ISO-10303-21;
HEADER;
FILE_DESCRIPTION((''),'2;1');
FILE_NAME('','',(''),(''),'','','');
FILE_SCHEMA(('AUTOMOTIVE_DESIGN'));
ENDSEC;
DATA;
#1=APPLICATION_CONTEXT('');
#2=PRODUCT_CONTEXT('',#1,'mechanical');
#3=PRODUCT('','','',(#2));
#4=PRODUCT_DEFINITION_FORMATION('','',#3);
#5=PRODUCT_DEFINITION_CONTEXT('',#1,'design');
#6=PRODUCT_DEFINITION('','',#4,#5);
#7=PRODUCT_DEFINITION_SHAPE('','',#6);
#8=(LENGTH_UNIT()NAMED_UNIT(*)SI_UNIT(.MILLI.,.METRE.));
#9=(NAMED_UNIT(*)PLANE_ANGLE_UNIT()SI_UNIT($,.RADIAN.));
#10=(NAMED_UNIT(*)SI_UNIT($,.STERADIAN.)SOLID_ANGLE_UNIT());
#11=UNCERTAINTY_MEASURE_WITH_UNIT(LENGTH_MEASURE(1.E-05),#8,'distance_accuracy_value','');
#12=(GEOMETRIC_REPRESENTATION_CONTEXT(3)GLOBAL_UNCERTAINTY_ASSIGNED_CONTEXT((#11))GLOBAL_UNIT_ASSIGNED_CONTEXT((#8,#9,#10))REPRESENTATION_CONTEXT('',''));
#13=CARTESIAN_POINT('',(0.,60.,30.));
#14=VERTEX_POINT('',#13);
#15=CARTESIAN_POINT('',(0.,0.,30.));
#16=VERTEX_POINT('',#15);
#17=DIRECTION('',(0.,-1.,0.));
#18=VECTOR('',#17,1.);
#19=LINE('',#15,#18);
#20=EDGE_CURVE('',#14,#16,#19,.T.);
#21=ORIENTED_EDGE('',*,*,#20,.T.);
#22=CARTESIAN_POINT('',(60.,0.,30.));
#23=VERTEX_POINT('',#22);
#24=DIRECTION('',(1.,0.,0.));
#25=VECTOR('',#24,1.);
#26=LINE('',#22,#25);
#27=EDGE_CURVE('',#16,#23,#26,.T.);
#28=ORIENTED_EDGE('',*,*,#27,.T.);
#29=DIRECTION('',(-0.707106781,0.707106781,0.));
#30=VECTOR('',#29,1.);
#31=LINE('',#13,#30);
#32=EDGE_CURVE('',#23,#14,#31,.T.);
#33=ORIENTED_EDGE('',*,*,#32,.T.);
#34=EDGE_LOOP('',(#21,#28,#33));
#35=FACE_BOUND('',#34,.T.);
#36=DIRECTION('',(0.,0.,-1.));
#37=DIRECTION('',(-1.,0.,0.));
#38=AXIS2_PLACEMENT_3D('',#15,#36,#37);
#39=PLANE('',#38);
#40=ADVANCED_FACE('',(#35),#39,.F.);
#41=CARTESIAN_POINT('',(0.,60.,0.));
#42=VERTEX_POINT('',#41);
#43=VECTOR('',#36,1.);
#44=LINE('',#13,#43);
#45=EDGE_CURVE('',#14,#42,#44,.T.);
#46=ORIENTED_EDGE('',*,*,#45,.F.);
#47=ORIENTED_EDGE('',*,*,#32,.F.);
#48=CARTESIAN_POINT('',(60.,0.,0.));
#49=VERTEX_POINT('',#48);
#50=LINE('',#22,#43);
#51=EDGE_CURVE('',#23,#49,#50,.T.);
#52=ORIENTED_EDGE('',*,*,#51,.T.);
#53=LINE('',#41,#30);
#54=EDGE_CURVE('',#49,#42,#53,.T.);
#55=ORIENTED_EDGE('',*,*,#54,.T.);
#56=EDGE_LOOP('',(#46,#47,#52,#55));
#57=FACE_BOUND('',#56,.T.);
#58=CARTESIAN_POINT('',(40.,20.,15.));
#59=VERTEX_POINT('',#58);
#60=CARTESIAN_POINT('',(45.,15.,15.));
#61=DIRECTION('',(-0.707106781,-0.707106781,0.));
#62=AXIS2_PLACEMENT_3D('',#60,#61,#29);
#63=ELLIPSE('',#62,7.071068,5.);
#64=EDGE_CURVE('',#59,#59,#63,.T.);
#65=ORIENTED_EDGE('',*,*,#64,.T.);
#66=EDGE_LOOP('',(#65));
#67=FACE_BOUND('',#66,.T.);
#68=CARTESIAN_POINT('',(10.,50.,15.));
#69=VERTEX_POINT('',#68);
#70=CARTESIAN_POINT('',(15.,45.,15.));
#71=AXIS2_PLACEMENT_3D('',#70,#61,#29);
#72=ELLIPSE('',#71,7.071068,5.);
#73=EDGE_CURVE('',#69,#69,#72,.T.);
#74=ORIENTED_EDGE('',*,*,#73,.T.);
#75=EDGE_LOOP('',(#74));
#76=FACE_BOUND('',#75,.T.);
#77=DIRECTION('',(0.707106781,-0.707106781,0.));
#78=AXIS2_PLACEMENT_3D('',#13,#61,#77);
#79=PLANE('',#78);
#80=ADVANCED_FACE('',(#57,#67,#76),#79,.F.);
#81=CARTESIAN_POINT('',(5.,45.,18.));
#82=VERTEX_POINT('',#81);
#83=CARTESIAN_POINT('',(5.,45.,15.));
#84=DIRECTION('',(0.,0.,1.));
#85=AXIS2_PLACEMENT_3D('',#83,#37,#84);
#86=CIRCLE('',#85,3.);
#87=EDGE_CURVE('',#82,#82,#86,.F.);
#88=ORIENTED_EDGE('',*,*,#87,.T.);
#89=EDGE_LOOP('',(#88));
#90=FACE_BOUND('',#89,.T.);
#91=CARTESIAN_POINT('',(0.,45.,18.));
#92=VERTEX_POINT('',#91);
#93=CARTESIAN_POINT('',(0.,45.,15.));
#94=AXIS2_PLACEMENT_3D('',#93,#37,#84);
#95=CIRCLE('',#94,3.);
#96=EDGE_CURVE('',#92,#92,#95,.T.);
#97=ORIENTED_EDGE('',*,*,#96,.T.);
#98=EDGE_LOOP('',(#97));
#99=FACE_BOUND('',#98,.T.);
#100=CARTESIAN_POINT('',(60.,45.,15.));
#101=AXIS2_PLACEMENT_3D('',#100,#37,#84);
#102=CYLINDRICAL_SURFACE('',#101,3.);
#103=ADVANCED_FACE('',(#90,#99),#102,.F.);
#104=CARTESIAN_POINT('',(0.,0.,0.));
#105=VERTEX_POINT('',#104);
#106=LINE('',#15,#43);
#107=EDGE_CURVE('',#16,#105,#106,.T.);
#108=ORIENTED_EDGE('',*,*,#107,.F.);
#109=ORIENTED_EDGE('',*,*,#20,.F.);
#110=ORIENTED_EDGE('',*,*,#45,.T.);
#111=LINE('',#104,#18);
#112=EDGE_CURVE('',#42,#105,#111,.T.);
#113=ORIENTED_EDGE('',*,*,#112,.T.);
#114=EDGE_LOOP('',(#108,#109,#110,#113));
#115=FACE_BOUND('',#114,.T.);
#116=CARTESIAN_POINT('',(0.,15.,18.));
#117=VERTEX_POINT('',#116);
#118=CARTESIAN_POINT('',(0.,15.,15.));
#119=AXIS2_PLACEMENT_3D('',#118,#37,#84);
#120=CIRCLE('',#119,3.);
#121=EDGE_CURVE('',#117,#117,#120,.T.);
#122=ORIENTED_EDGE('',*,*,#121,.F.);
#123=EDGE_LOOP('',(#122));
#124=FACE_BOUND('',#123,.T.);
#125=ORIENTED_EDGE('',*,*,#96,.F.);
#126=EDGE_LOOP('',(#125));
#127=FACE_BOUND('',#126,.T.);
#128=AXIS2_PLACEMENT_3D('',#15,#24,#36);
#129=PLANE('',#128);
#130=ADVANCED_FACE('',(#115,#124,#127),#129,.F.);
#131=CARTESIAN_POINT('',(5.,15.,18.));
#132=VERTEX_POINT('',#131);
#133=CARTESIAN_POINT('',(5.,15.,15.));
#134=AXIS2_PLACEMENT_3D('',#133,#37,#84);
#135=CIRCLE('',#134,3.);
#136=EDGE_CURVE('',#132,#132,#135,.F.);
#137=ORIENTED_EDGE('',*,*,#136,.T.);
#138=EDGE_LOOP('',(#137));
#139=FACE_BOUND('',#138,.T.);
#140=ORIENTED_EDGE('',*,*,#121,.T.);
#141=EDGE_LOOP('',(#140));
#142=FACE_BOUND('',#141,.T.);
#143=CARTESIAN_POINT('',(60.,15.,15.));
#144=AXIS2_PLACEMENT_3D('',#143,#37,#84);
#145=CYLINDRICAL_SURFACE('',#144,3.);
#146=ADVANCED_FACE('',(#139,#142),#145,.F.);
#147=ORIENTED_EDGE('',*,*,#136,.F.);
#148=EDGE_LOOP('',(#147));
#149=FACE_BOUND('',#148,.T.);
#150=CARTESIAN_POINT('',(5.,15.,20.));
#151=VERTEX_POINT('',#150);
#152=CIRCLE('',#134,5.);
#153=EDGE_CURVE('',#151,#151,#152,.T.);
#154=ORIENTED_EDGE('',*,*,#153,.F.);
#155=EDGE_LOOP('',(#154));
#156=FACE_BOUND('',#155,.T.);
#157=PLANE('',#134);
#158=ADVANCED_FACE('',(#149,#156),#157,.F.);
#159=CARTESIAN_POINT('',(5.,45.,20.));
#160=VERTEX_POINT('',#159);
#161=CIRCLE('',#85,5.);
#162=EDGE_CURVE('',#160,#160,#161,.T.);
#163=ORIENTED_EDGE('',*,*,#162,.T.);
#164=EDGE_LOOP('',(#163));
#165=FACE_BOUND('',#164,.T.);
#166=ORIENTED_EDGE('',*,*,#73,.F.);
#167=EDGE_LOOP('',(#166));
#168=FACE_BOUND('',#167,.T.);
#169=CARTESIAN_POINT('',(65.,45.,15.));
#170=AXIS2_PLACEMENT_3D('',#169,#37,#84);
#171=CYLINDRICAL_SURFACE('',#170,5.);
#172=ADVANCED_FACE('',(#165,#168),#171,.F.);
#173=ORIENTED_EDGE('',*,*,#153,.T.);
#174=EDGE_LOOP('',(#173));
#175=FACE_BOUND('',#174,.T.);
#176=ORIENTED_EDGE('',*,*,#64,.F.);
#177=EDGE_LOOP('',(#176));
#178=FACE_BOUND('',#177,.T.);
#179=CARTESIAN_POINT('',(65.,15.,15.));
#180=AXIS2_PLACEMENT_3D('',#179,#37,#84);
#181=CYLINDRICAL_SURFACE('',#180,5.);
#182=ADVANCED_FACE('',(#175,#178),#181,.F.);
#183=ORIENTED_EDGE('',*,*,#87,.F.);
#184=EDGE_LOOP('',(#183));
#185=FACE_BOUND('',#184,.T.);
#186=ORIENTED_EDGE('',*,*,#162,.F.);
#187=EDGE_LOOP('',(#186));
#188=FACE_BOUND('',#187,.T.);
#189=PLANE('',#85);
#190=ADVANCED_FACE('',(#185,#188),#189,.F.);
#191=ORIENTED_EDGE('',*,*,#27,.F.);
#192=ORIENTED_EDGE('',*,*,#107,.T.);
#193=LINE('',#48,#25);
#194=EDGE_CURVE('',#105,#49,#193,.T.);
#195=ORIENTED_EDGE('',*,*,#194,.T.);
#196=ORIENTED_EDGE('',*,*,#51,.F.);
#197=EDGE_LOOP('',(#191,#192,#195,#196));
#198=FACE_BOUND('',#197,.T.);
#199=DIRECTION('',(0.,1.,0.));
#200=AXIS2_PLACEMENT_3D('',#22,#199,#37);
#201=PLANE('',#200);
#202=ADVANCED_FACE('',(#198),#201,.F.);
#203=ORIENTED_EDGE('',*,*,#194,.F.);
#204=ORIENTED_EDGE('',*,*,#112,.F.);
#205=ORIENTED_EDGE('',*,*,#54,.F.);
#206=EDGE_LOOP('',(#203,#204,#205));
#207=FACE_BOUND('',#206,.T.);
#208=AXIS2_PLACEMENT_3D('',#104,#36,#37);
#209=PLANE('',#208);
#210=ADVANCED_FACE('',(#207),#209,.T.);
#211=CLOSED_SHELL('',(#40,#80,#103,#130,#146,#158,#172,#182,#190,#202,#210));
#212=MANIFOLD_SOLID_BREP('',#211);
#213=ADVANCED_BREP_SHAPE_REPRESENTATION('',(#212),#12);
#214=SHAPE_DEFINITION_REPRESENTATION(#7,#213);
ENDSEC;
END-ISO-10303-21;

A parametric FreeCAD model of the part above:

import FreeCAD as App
import Part
import Sketcher

V = App.Vector

doc = App.newDocument("Part")
body = doc.addObject("PartDesign::Body", "Body")

# Sketch on XY plane
sketch1 = doc.addObject("Sketcher::SketchObject", "Sketch")
body.addObject(sketch1)
sketch1.AttachmentSupport = (doc.XY_Plane, [""])
sketch1.MapMode = "FlatFace"
sketch1.addGeometry([
    Part.LineSegment(V(0, 60, 0), V(0, 0, 0)),
    Part.LineSegment(V(0, 0, 0), V(60, 0, 0)),
    Part.LineSegment(V(60, 0, 0), V(0, 60, 0)),
], False)
sketch1.addConstraint([
    Sketcher.Constraint("Coincident", 0, 2, 1, 1),
    Sketcher.Constraint("Coincident", 1, 2, 2, 1),
    Sketcher.Constraint("Coincident", 2, 2, 0, 1),
    Sketcher.Constraint("Vertical", 0),
    Sketcher.Constraint("Horizontal", 1),
    Sketcher.Constraint("Coincident", 0, 2, -1, 1),
    Sketcher.Constraint("Equal", 1, 0),
    Sketcher.Constraint("DistanceX", 1, 1, 1, 2, 60.0),
])
pad1 = doc.addObject("PartDesign::Pad", "Pad")
body.addObject(pad1)
pad1.Profile = sketch1
pad1.Length = 30

# Sketch on YZ plane
sketch2 = doc.addObject("Sketcher::SketchObject", "Sketch001")
body.addObject(sketch2)
sketch2.AttachmentSupport = (doc.YZ_Plane, [""])
sketch2.MapMode = "FlatFace"
sketch2.addGeometry([
    Part.Circle(V(15, 15, 0), V(0, 0, 1), 3),
    Part.Circle(V(45, 15, 0), V(0, 0, 1), 3),
], False)
sketch2.addConstraint([
    Sketcher.Constraint("Equal", 0, 1),
    Sketcher.Constraint("Horizontal", 0, 3, 1, 3),
    Sketcher.Constraint("Diameter", 0, 6.0),
    Sketcher.Constraint("DistanceX", -1, 1, 0, 3, 15.0),
    Sketcher.Constraint("DistanceY", -1, 1, 0, 3, 15.0),
    Sketcher.Constraint("DistanceX", -1, 1, 1, 3, 45.0),
])
pocket1 = doc.addObject("PartDesign::Pocket", "Pocket")
body.addObject(pocket1)
pocket1.Profile = sketch2
pocket1.Length = 60
pocket1.Reversed = True

# Sketch on YZ plane
sketch3 = doc.addObject("Sketcher::SketchObject", "Sketch002")
body.addObject(sketch3)
sketch3.AttachmentSupport = (doc.YZ_Plane, [""])
sketch3.MapMode = "FlatFace"
sketch3.AttachmentOffset = App.Placement(V(0, 0, 5), App.Rotation())
sketch3.addGeometry([
    Part.Circle(V(15, 15, 0), V(0, 0, 1), 5),
    Part.Circle(V(45, 15, 0), V(0, 0, 1), 5),
], False)
sketch3.addConstraint([
    Sketcher.Constraint("Equal", 0, 1),
    Sketcher.Constraint("Horizontal", 0, 3, 1, 3),
    Sketcher.Constraint("Diameter", 0, 10.0),
    Sketcher.Constraint("DistanceX", -1, 1, 0, 3, 15.0),
    Sketcher.Constraint("DistanceY", -1, 1, 0, 3, 15.0),
    Sketcher.Constraint("DistanceX", -1, 1, 1, 3, 45.0),
])
pocket2 = doc.addObject("PartDesign::Pocket", "Pocket001")
body.addObject(pocket2)
pocket2.Profile = sketch3
pocket2.Length = 60
pocket2.Reversed = True

doc.recompute()
